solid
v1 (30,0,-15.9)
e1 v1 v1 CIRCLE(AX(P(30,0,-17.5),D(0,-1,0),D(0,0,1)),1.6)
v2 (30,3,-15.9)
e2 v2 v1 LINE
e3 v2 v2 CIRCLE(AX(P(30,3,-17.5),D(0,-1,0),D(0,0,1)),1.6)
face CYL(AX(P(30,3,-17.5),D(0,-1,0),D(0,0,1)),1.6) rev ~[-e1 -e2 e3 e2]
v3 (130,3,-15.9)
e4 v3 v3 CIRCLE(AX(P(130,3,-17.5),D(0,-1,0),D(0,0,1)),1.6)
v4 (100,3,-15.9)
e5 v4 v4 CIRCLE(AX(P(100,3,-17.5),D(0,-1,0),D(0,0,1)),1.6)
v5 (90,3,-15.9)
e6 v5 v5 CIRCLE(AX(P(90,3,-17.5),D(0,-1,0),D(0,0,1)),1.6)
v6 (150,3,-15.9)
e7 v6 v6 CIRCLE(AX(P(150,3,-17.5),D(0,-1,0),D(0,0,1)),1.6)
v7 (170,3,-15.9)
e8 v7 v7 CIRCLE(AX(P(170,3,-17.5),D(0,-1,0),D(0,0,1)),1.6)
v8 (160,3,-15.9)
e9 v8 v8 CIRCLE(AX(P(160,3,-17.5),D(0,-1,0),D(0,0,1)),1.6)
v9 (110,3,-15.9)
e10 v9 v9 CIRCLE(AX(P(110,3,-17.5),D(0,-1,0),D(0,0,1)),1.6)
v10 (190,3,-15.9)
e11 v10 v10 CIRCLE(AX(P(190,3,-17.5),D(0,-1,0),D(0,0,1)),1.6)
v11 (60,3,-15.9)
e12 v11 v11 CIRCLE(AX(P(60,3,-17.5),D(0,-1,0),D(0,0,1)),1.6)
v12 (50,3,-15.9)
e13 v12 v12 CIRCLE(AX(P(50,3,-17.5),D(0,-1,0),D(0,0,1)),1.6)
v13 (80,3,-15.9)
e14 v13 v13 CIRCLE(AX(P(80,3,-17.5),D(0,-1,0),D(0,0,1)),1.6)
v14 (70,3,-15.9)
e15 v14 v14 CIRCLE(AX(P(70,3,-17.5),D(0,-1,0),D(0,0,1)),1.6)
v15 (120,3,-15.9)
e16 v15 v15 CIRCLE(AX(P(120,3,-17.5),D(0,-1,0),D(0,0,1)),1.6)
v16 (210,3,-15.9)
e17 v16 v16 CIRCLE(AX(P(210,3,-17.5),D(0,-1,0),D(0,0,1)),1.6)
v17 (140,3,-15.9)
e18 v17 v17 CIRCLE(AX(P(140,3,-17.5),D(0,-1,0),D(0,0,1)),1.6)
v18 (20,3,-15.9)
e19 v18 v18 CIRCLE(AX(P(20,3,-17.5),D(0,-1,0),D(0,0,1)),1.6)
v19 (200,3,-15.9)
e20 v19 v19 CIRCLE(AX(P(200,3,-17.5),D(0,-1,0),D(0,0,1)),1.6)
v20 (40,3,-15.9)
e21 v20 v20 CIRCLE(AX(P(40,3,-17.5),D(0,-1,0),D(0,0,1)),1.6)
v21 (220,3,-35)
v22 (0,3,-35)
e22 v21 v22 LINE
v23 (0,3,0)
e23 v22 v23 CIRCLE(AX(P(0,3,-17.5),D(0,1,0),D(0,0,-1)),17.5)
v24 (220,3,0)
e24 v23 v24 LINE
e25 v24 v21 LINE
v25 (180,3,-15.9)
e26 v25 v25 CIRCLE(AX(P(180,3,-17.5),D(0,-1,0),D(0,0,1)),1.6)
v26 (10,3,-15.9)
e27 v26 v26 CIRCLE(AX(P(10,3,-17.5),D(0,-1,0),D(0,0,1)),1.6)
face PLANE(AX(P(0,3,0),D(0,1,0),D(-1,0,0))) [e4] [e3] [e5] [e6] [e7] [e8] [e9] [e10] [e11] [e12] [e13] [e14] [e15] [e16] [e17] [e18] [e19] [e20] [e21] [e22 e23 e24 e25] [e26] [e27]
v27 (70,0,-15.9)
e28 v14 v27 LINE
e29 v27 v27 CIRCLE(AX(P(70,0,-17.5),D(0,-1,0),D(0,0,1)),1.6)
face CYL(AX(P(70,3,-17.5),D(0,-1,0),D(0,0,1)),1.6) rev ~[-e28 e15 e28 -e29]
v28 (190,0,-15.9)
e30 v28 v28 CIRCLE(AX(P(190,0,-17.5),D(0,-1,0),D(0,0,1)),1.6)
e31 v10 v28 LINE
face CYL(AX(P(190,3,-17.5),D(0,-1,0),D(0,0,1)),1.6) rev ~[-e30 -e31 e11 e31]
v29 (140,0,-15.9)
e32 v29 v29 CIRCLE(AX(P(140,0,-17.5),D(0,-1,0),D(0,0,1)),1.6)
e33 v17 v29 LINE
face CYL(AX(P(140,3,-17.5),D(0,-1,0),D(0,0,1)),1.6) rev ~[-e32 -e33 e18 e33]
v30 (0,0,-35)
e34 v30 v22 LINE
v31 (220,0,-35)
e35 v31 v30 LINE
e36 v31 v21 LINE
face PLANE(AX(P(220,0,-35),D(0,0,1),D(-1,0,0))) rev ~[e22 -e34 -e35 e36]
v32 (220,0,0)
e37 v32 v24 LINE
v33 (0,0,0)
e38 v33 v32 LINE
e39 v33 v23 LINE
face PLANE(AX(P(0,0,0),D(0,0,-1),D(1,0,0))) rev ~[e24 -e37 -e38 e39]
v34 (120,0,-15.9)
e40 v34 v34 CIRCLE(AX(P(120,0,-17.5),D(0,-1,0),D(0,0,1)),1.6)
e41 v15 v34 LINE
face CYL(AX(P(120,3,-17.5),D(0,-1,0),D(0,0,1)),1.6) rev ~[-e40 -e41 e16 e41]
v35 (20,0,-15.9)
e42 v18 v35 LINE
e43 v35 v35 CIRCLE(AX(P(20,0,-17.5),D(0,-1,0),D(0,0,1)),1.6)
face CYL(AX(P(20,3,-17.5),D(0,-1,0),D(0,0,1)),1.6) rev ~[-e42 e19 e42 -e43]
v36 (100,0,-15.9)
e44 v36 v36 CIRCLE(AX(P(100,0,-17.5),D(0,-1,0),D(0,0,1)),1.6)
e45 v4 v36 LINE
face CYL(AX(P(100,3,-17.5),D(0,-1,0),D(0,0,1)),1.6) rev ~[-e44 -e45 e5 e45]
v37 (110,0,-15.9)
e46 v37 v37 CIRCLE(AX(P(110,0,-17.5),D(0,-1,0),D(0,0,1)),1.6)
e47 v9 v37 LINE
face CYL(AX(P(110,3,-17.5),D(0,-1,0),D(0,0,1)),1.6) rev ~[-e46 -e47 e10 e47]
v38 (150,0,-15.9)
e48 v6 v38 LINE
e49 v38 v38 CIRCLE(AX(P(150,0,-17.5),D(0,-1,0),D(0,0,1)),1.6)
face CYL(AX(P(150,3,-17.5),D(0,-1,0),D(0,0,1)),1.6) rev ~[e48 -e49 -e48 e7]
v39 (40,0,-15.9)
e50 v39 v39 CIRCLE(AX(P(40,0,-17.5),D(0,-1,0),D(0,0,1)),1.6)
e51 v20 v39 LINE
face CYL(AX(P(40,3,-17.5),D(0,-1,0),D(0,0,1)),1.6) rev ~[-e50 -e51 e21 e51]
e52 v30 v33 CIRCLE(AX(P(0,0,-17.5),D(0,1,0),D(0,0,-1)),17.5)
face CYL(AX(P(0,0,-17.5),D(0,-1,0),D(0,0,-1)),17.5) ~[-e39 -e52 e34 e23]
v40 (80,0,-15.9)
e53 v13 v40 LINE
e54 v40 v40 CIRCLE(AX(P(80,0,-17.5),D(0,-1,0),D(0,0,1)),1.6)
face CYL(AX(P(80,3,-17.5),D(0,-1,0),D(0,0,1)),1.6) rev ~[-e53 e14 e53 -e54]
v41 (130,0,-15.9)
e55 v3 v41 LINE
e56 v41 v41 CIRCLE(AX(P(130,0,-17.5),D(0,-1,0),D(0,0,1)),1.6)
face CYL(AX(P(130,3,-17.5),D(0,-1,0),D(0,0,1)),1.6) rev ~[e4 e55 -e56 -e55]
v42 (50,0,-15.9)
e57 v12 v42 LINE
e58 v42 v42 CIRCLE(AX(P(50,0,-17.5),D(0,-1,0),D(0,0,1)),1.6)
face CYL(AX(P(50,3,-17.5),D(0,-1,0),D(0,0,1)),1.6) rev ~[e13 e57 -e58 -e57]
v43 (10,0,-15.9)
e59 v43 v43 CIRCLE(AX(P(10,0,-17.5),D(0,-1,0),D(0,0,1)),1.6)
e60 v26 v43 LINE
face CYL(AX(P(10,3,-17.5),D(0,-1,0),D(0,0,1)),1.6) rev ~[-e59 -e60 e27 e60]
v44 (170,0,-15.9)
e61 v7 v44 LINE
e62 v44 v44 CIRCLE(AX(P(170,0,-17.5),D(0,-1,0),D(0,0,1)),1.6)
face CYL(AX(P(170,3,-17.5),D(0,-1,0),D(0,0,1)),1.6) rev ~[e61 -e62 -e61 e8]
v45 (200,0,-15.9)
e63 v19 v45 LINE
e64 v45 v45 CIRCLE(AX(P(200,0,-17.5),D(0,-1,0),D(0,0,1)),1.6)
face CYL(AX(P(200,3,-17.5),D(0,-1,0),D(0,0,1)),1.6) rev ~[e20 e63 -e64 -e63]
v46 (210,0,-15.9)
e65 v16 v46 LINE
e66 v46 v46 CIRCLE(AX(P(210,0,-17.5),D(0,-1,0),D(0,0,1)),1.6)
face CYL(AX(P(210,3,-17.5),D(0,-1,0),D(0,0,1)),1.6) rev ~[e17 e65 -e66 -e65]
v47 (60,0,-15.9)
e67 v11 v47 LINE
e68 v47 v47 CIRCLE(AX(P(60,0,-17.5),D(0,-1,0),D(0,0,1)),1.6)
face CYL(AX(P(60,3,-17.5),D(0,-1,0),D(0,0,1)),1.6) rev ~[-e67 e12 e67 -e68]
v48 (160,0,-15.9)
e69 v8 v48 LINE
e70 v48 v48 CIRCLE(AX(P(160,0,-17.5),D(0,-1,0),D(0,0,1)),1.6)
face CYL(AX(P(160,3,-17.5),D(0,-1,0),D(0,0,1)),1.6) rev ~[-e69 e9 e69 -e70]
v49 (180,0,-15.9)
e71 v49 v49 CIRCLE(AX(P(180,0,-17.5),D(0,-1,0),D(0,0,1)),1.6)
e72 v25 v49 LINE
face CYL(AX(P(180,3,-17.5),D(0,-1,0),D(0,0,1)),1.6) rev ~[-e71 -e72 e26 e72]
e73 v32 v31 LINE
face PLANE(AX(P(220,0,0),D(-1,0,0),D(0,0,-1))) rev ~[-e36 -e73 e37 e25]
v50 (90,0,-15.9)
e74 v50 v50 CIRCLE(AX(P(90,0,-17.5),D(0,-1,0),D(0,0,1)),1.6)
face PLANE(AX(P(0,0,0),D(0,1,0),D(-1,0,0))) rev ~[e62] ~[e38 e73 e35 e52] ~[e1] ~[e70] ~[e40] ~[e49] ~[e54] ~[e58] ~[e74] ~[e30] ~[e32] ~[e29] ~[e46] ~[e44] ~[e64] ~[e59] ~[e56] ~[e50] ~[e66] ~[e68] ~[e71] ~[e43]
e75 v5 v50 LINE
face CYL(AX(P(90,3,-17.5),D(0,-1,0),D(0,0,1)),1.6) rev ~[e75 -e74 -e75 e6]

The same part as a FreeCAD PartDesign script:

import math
import FreeCAD as App
import Part
import Sketcher
from FreeCAD import Vector

doc = App.newDocument("Part")
body = doc.addObject("PartDesign::Body", "Body")

# Sketch on XZ plane
sketch1 = doc.addObject("Sketcher::SketchObject", "Sketch")
body.addObject(sketch1)
sketch1.AttachmentSupport = (doc.XZ_Plane, [""])
sketch1.MapMode = "FlatFace"
sketch1.addGeometry([
    Part.LineSegment(Vector(220, -35, 0), Vector(0, -35, 0)),
    Part.ArcOfCircle(Part.Circle(Vector(0, -18, 0), Vector(0, 0, 1), 18), math.radians(90), math.radians(270)),
    Part.LineSegment(Vector(0, 0, 0), Vector(220, 0, 0)),
    Part.LineSegment(Vector(220, 0, 0), Vector(220, -35, 0)),
], False)
sketch1.addConstraint([
    Sketcher.Constraint("Tangent", 0, 2, 1, 2),
    Sketcher.Constraint("Tangent", 1, 1, 2, 1),
    Sketcher.Constraint("Coincident", 2, 2, 3, 1),
    Sketcher.Constraint("Coincident", 3, 2, 0, 1),
    Sketcher.Constraint("Horizontal", 0),
    Sketcher.Constraint("Horizontal", 2),
    Sketcher.Constraint("Vertical", 3),
    Sketcher.Constraint("Coincident", 1, 1, -1, 1),
    Sketcher.Constraint("Radius", 1, 17.5),
    Sketcher.Constraint("DistanceX", 0, 2, 0, 1, 220.0),
])
pad1 = doc.addObject("PartDesign::Pad", "Pad")
body.addObject(pad1)
pad1.Profile = sketch1
pad1.Length = 3
pad1.Reversed = True

# Sketch on XZ plane
sketch2 = doc.addObject("Sketcher::SketchObject", "Sketch001")
body.addObject(sketch2)
sketch2.AttachmentSupport = (doc.XZ_Plane, [""])
sketch2.MapMode = "FlatFace"
sketch2.AttachmentOffset = App.Placement(Vector(0, 0, -3), App.Rotation())
sketch2.addGeometry([
    Part.Circle(Vector(20, -17.5, 0), Vector(0, 0, 1), 1.6),  # 0
    Part.Circle(Vector(30, -17.5, 0), Vector(0, 0, 1), 1.6),  # 1
    Part.Circle(Vector(40, -17.5, 0), Vector(0, 0, 1), 1.6),  # 2
    Part.Circle(Vector(50, -17.5, 0), Vector(0, 0, 1), 1.6),  # 3
    Part.Circle(Vector(60, -17.5, 0), Vector(0, 0, 1), 1.6),  # 4
    Part.Circle(Vector(70, -17.5, 0), Vector(0, 0, 1), 1.6),  # 5
    Part.Circle(Vector(80, -17.5, 0), Vector(0, 0, 1), 1.6),  # 6
    Part.Circle(Vector(90, -17.5, 0), Vector(0, 0, 1), 1.6),  # 7
    Part.Circle(Vector(100, -17.5, 0), Vector(0, 0, 1), 1.6),  # 8
    Part.Circle(Vector(110, -17.5, 0), Vector(0, 0, 1), 1.6),  # 9
    Part.Circle(Vector(120, -17.5, 0), Vector(0, 0, 1), 1.6),  # 10
    Part.Circle(Vector(130, -17.5, 0), Vector(0, 0, 1), 1.6),  # 11
    Part.Circle(Vector(140, -17.5, 0), Vector(0, 0, 1), 1.6),  # 12
    Part.Circle(Vector(150, -17.5, 0), Vector(0, 0, 1), 1.6),  # 13
    Part.Circle(Vector(160, -17.5, 0), Vector(0, 0, 1), 1.6),  # 14
    Part.Circle(Vector(170, -17.5, 0), Vector(0, 0, 1), 1.6),  # 15
    Part.Circle(Vector(180, -17.5, 0), Vector(0, 0, 1), 1.6),  # 16
    Part.Circle(Vector(190, -17.5, 0), Vector(0, 0, 1), 1.6),  # 17
    Part.Circle(Vector(200, -17.5, 0), Vector(0, 0, 1), 1.6),  # 18
    Part.Circle(Vector(210, -17.5, 0), Vector(0, 0, 1), 1.6),  # 19
    Part.Circle(Vector(10, -17.5, 0), Vector(0, 0, 1), 1.6),  # 20
], False)
sketch2.addConstraint([
    Sketcher.Constraint("Equal", 0, 1),
    Sketcher.Constraint("Equal", 1, 2),
    Sketcher.Constraint("Equal", 2, 3),
    Sketcher.Constraint("Equal", 3, 4),
    Sketcher.Constraint("Equal", 4, 5),
    Sketcher.Constraint("Equal", 5, 6),
    Sketcher.Constraint("Equal", 6, 7),
    Sketcher.Constraint("Equal", 7, 8),
    Sketcher.Constraint("Equal", 8, 9),
    Sketcher.Constraint("Equal", 9, 10),
    Sketcher.Constraint("Equal", 10, 11),
    Sketcher.Constraint("Equal", 11, 12),
    Sketcher.Constraint("Equal", 12, 13),
    Sketcher.Constraint("Equal", 13, 14),
    Sketcher.Constraint("Equal", 14, 15),
    Sketcher.Constraint("Equal", 15, 16),
    Sketcher.Constraint("Equal", 16, 17),
    Sketcher.Constraint("Equal", 17, 18),
    Sketcher.Constraint("Equal", 18, 19),
    Sketcher.Constraint("Equal", 19, 20),
    Sketcher.Constraint("Horizontal", 0, 3, 1, 3),
    Sketcher.Constraint("Horizontal", 1, 3, 2, 3),
    Sketcher.Constraint("Horizontal", 2, 3, 3, 3),
    Sketcher.Constraint("Horizontal", 3, 3, 4, 3),
    Sketcher.Constraint("Horizontal", 4, 3, 5, 3),
    Sketcher.Constraint("Horizontal", 5, 3, 6, 3),
    Sketcher.Constraint("Horizontal", 6, 3, 7, 3),
    Sketcher.Constraint("Horizontal", 7, 3, 8, 3),
    Sketcher.Constraint("Horizontal", 8, 3, 9, 3),
    Sketcher.Constraint("Horizontal", 9, 3, 10, 3),
    Sketcher.Constraint("Horizontal", 10, 3, 11, 3),
    Sketcher.Constraint("Horizontal", 11, 3, 12, 3),
    Sketcher.Constraint("Horizontal", 12, 3, 13, 3),
    Sketcher.Constraint("Horizontal", 13, 3, 14, 3),
    Sketcher.Constraint("Horizontal", 14, 3, 15, 3),
    Sketcher.Constraint("Horizontal", 15, 3, 16, 3),
    Sketcher.Constraint("Horizontal", 16, 3, 17, 3),
    Sketcher.Constraint("Horizontal", 17, 3, 18, 3),
    Sketcher.Constraint("Horizontal", 18, 3, 19, 3),
    Sketcher.Constraint("Horizontal", 19, 3, 20, 3),
    Sketcher.Constraint("Diameter", 0, 3.2),
    Sketcher.Constraint("DistanceX", -1, 1, 0, 3, 20.0),
    Sketcher.Constraint("DistanceX", -1, 1, 1, 3, 30.0),
    Sketcher.Constraint("DistanceX", -1, 1, 2, 3, 40.0),
    Sketcher.Constraint("DistanceX", -1, 1, 3, 3, 50.0),
    Sketcher.Constraint("DistanceX", -1, 1, 4, 3, 60.0),
    Sketcher.Constraint("DistanceX", -1, 1, 5, 3, 70.0),
    Sketcher.Constraint("DistanceX", -1, 1, 6, 3, 80.0),
    Sketcher.Constraint("DistanceX", -1, 1, 7, 3, 90.0),
    Sketcher.Constraint("DistanceX", -1, 1, 8, 3, 100.0),
    Sketcher.Constraint("DistanceX", -1, 1, 9, 3, 110.0),
    Sketcher.Constraint("DistanceX", -1, 1, 10, 3, 120.0),
    Sketcher.Constraint("DistanceX", -1, 1, 11, 3, 130.0),
    Sketcher.Constraint("DistanceX", -1, 1, 12, 3, 140.0),
    Sketcher.Constraint("DistanceX", -1, 1, 13, 3, 150.0),
    Sketcher.Constraint("DistanceX", -1, 1, 14, 3, 160.0),
    Sketcher.Constraint("DistanceX", -1, 1, 15, 3, 170.0),
    Sketcher.Constraint("DistanceX", -1, 1, 16, 3, 180.0),
    Sketcher.Constraint("DistanceX", -1, 1, 17, 3, 190.0),
    Sketcher.Constraint("DistanceX", -1, 1, 18, 3, 200.0),
    Sketcher.Constraint("DistanceX", -1, 1, 19, 3, 210.0),
    Sketcher.Constraint("DistanceX", -1, 1, 20, 3, 10.0),
    Sketcher.Constraint("DistanceY", 0, 3, -1, 1, 17.5),
])
doc.recompute()
hole = doc.addObject("PartDesign::Hole", "Hole")
body.addObject(hole)
hole.Profile = sketch2
hole.ThreadType = "None"
hole.Diameter = 3.2
hole.DepthType = "ThroughAll"
hole.Reversed = True

doc.recompute()
